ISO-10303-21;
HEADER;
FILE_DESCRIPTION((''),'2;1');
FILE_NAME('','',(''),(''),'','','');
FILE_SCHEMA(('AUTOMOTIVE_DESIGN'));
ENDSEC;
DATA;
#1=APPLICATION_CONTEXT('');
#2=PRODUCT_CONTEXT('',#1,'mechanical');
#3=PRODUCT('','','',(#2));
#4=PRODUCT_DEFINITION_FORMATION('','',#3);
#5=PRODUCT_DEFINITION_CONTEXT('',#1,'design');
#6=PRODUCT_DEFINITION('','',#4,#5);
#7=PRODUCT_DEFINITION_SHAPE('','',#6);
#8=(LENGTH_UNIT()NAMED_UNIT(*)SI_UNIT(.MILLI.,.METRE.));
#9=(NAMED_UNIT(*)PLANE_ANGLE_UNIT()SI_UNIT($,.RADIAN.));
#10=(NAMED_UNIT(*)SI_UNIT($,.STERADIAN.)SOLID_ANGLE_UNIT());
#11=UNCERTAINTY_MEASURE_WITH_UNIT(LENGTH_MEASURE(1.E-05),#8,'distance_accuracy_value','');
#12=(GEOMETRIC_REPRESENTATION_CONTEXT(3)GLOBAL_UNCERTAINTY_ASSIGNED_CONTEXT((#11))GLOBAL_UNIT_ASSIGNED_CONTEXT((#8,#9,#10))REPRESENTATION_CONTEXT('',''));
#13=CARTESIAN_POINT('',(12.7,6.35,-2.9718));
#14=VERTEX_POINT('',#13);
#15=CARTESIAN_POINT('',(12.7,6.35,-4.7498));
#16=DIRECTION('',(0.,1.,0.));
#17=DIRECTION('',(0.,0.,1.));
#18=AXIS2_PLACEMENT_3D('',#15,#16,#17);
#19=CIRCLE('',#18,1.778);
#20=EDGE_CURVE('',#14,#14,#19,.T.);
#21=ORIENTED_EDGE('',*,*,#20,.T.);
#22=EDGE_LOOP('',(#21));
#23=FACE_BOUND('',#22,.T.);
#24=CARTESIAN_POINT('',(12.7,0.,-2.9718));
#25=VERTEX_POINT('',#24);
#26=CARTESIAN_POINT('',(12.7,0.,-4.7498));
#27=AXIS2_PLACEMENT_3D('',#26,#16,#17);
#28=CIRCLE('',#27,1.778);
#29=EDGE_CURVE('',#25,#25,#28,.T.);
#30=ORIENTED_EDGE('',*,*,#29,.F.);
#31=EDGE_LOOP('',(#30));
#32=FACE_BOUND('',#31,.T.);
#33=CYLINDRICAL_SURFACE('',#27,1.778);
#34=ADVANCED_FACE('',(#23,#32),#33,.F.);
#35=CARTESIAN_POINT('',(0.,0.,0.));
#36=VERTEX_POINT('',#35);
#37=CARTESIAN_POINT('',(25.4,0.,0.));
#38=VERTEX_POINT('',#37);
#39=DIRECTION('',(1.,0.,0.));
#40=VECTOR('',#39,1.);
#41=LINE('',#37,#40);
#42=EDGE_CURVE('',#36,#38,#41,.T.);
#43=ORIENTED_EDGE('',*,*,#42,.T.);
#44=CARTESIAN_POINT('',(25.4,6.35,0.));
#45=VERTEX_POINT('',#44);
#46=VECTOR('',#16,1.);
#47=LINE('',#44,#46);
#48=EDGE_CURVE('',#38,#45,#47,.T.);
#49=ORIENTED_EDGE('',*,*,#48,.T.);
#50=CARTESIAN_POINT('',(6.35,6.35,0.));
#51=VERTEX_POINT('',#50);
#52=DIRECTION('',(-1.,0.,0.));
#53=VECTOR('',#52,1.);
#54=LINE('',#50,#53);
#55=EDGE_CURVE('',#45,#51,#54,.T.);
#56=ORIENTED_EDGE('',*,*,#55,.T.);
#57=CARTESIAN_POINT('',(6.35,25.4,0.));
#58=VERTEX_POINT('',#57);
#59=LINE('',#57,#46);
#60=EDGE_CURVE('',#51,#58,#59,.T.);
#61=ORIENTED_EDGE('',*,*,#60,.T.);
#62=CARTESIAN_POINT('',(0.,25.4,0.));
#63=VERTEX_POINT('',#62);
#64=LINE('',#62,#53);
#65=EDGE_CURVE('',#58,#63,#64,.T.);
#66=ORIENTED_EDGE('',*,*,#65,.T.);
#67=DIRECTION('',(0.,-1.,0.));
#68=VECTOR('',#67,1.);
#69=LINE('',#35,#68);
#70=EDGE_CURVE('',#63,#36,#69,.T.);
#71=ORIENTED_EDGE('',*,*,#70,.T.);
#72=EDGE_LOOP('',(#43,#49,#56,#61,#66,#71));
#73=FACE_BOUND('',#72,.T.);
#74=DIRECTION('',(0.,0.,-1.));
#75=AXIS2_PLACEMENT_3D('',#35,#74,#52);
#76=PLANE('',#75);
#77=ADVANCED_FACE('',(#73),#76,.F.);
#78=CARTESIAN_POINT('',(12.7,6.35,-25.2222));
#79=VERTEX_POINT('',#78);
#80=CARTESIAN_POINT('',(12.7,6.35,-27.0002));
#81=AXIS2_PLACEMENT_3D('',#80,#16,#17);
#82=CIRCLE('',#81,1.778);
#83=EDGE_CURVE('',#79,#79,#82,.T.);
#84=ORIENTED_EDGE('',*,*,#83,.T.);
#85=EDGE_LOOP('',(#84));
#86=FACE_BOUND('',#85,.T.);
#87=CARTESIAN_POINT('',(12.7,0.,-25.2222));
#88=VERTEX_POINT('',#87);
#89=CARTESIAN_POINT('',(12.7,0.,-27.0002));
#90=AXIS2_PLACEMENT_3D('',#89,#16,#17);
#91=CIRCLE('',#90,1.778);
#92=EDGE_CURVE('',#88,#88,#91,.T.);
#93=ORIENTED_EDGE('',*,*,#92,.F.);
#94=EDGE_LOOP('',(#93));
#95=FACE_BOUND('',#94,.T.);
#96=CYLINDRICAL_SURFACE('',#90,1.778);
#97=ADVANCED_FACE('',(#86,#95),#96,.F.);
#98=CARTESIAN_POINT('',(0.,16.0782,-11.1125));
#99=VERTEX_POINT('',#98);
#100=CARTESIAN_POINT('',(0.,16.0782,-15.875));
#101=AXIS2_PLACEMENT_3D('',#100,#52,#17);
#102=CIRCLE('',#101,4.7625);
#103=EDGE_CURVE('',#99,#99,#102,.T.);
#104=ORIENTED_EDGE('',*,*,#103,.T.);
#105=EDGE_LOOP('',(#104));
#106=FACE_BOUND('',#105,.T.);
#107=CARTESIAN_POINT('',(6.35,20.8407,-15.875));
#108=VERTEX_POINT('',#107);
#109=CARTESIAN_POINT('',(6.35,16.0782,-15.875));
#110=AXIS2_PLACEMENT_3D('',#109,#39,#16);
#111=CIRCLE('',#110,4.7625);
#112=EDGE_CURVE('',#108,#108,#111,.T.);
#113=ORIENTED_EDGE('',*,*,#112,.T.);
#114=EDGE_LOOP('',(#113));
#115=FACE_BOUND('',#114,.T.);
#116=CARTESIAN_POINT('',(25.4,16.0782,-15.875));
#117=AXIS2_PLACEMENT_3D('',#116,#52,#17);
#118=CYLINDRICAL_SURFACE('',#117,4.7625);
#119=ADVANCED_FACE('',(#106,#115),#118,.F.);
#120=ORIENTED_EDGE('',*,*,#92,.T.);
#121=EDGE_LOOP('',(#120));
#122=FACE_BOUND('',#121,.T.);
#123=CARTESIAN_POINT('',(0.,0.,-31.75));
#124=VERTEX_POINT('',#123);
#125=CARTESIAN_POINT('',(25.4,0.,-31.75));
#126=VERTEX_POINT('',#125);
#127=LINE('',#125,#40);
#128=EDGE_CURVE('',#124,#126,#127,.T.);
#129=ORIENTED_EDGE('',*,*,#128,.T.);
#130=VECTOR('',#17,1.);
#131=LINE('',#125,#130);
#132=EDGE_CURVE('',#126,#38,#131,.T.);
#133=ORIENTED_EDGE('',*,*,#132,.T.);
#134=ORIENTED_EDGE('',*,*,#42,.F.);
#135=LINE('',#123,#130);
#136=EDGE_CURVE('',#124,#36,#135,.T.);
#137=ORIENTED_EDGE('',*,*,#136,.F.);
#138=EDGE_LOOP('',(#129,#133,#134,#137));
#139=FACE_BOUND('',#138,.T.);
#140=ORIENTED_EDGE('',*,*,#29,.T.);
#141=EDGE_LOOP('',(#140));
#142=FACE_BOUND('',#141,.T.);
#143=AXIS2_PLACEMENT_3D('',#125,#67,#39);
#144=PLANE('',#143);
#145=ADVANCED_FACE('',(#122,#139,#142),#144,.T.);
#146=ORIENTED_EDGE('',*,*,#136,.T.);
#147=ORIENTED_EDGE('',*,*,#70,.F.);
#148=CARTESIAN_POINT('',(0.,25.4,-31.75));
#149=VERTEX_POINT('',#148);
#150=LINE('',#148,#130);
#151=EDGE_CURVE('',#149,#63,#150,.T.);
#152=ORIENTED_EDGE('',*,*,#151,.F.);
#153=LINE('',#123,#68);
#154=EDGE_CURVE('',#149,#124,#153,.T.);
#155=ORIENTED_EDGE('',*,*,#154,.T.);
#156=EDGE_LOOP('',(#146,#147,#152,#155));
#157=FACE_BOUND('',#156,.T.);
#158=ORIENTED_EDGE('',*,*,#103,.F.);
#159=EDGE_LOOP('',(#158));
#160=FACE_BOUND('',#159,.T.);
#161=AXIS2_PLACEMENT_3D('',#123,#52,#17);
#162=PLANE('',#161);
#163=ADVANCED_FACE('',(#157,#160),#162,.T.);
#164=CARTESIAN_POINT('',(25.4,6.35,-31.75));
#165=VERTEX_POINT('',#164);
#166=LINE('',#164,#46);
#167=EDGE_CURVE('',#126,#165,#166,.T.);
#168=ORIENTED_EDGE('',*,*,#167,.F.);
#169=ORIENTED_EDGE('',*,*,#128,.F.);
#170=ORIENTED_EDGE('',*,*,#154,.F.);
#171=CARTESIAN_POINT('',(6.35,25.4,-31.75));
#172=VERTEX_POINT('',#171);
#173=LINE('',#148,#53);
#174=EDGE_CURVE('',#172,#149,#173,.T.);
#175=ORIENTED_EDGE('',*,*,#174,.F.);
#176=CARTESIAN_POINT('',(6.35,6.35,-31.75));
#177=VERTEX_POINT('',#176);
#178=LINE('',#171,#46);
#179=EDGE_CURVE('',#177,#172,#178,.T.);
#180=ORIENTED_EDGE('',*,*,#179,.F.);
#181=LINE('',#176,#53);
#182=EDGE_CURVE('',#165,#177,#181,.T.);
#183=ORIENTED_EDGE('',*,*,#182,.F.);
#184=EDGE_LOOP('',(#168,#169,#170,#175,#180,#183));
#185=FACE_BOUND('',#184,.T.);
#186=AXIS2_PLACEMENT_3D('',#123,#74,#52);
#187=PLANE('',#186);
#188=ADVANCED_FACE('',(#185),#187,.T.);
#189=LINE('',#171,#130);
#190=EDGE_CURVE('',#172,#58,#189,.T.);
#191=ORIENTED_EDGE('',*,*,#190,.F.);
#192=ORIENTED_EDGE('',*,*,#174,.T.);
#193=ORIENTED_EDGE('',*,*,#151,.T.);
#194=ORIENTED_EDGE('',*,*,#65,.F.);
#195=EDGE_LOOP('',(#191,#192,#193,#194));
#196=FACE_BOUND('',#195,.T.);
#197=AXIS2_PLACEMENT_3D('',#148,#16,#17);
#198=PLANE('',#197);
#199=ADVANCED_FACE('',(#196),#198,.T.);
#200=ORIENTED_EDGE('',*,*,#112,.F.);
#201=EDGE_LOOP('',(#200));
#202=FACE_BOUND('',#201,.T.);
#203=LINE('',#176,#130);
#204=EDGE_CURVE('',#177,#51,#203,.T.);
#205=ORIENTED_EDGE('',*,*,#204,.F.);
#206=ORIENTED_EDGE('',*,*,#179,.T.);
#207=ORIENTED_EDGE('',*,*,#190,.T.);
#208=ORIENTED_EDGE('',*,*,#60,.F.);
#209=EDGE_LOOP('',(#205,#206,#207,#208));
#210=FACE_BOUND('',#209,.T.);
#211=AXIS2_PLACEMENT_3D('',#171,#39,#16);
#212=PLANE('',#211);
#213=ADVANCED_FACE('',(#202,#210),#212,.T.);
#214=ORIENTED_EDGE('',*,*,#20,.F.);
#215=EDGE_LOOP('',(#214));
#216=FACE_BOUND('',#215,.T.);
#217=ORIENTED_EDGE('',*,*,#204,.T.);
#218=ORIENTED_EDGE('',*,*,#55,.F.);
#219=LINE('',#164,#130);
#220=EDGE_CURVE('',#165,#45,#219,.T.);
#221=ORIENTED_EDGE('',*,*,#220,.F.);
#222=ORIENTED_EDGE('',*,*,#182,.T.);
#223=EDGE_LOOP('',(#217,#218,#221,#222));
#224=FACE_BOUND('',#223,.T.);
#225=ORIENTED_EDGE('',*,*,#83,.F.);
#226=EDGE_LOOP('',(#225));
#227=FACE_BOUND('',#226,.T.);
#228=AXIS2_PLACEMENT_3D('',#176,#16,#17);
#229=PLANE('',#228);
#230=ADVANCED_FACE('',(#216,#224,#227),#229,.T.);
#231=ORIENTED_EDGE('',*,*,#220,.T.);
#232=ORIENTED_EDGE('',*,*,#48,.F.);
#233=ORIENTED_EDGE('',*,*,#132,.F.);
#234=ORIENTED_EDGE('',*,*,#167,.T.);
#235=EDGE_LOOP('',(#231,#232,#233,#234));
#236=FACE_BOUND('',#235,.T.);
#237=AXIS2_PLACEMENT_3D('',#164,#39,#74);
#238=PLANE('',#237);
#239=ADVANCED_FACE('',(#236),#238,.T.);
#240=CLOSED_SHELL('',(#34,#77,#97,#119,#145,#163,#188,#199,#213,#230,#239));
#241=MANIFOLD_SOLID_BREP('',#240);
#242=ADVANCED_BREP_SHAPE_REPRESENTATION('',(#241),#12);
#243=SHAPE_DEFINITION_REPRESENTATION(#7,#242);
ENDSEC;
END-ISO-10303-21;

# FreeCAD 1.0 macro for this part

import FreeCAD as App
import Part
import Sketcher
from FreeCAD import Vector
Q = App.Units.Quantity

doc = App.newDocument("Part")
body = doc.addObject("PartDesign::Body", "Body")

sketch1 = body.newObject("Sketcher::SketchObject", "Sketch")
sketch1.AttachmentSupport = (doc.getObject("XY_Plane"), [""])
sketch1.MapMode = "FlatFace"
sketch1.addGeometry([
    Part.LineSegment(Vector(0, 25.4, 0), Vector(0, 0, 0)),
    Part.LineSegment(Vector(0, 0, 0), Vector(25.4, 0, 0)),
    Part.LineSegment(Vector(25.4, 0, 0), Vector(25.4, 6.35, 0)),
    Part.LineSegment(Vector(25.4, 6.35, 0), Vector(6.35, 6.35, 0)),
    Part.LineSegment(Vector(6.35, 6.35, 0), Vector(6.35, 25.4, 0)),
    Part.LineSegment(Vector(6.35, 25.4, 0), Vector(0, 25.4, 0)),
], False)
sketch1.addConstraint([
    Sketcher.Constraint("Coincident", 0, 2, 1, 1),
    Sketcher.Constraint("Coincident", 1, 2, 2, 1),
    Sketcher.Constraint("Coincident", 2, 2, 3, 1),
    Sketcher.Constraint("Coincident", 3, 2, 4, 1),
    Sketcher.Constraint("Coincident", 4, 2, 5, 1),
    Sketcher.Constraint("Coincident", 5, 2, 0, 1),
    Sketcher.Constraint("Vertical", 0),
    Sketcher.Constraint("Horizontal", 1),
    Sketcher.Constraint("Vertical", 2),
    Sketcher.Constraint("Horizontal", 3),
    Sketcher.Constraint("Vertical", 4),
    Sketcher.Constraint("Horizontal", 5),
    Sketcher.Constraint("Coincident", 0, 2, -1, 1),
    Sketcher.Constraint("Equal", 1, 0),
    Sketcher.Constraint("Equal", 5, 2),
    Sketcher.Constraint("DistanceX", 1, 1, 1, 2, Q("1 in")),
    Sketcher.Constraint("DistanceX", 3, 2, 3, 1, Q("0.75 in")),
])
pad1 = body.newObject("PartDesign::Pad", "Pad")
pad1.Profile = sketch1
pad1.Length = Q("1.25 in")
pad1.Reversed = True

sketch2 = body.newObject("Sketcher::SketchObject", "Sketch001")
sketch2.AttachmentSupport = (doc.getObject("YZ_Plane"), [""])
sketch2.MapMode = "FlatFace"
sketch2.addGeometry(Part.Circle(Vector(16.0782, -15.875, 0), Vector(0, 0, 1), 4.7625), False)
sketch2.addConstraint([
    Sketcher.Constraint("Diameter", 0, Q("0.375 in")),
    Sketcher.Constraint("DistanceX", -1, 1, 0, 3, Q("0.633 in")),
    Sketcher.Constraint("DistanceY", 0, 3, -1, 1, Q("0.625 in")),
])
pocket1 = body.newObject("PartDesign::Pocket", "Pocket")
pocket1.Profile = sketch2
pocket1.Type = "ThroughAll"
pocket1.Reversed = True

sketch3 = body.newObject("Sketcher::SketchObject", "Sketch002")
sketch3.AttachmentSupport = (doc.getObject("XZ_Plane"), [""])
sketch3.MapMode = "FlatFace"
sketch3.AttachmentOffset = App.Placement(Vector(0, 0, -0.25 * 25.4), App.Rotation())
sketch3.addGeometry([
    Part.Circle(Vector(12.7, -27.0002, 0), Vector(0, 0, 1), 1.778),
    Part.Circle(Vector(12.7, -4.7498, 0), Vector(0, 0, 1), 1.778),
], False)
sketch3.addConstraint([
    Sketcher.Constraint("Equal", 0, 1),
    Sketcher.Constraint("Vertical", 0, 3, 1, 3),
    Sketcher.Constraint("Diameter", 0, Q("0.14 in")),
    Sketcher.Constraint("DistanceX", -1, 1, 0, 3, Q("0.5 in")),
    Sketcher.Constraint("DistanceY", 0, 3, -1, 1, Q("1.063 in")),
    Sketcher.Constraint("DistanceY", 1, 3, -1, 1, Q("0.187 in")),
])
pocket2 = body.newObject("PartDesign::Pocket", "Pocket001")
pocket2.Profile = sketch3
pocket2.Type = "ThroughAll"
pocket2.Reversed = True

doc.recompute()
